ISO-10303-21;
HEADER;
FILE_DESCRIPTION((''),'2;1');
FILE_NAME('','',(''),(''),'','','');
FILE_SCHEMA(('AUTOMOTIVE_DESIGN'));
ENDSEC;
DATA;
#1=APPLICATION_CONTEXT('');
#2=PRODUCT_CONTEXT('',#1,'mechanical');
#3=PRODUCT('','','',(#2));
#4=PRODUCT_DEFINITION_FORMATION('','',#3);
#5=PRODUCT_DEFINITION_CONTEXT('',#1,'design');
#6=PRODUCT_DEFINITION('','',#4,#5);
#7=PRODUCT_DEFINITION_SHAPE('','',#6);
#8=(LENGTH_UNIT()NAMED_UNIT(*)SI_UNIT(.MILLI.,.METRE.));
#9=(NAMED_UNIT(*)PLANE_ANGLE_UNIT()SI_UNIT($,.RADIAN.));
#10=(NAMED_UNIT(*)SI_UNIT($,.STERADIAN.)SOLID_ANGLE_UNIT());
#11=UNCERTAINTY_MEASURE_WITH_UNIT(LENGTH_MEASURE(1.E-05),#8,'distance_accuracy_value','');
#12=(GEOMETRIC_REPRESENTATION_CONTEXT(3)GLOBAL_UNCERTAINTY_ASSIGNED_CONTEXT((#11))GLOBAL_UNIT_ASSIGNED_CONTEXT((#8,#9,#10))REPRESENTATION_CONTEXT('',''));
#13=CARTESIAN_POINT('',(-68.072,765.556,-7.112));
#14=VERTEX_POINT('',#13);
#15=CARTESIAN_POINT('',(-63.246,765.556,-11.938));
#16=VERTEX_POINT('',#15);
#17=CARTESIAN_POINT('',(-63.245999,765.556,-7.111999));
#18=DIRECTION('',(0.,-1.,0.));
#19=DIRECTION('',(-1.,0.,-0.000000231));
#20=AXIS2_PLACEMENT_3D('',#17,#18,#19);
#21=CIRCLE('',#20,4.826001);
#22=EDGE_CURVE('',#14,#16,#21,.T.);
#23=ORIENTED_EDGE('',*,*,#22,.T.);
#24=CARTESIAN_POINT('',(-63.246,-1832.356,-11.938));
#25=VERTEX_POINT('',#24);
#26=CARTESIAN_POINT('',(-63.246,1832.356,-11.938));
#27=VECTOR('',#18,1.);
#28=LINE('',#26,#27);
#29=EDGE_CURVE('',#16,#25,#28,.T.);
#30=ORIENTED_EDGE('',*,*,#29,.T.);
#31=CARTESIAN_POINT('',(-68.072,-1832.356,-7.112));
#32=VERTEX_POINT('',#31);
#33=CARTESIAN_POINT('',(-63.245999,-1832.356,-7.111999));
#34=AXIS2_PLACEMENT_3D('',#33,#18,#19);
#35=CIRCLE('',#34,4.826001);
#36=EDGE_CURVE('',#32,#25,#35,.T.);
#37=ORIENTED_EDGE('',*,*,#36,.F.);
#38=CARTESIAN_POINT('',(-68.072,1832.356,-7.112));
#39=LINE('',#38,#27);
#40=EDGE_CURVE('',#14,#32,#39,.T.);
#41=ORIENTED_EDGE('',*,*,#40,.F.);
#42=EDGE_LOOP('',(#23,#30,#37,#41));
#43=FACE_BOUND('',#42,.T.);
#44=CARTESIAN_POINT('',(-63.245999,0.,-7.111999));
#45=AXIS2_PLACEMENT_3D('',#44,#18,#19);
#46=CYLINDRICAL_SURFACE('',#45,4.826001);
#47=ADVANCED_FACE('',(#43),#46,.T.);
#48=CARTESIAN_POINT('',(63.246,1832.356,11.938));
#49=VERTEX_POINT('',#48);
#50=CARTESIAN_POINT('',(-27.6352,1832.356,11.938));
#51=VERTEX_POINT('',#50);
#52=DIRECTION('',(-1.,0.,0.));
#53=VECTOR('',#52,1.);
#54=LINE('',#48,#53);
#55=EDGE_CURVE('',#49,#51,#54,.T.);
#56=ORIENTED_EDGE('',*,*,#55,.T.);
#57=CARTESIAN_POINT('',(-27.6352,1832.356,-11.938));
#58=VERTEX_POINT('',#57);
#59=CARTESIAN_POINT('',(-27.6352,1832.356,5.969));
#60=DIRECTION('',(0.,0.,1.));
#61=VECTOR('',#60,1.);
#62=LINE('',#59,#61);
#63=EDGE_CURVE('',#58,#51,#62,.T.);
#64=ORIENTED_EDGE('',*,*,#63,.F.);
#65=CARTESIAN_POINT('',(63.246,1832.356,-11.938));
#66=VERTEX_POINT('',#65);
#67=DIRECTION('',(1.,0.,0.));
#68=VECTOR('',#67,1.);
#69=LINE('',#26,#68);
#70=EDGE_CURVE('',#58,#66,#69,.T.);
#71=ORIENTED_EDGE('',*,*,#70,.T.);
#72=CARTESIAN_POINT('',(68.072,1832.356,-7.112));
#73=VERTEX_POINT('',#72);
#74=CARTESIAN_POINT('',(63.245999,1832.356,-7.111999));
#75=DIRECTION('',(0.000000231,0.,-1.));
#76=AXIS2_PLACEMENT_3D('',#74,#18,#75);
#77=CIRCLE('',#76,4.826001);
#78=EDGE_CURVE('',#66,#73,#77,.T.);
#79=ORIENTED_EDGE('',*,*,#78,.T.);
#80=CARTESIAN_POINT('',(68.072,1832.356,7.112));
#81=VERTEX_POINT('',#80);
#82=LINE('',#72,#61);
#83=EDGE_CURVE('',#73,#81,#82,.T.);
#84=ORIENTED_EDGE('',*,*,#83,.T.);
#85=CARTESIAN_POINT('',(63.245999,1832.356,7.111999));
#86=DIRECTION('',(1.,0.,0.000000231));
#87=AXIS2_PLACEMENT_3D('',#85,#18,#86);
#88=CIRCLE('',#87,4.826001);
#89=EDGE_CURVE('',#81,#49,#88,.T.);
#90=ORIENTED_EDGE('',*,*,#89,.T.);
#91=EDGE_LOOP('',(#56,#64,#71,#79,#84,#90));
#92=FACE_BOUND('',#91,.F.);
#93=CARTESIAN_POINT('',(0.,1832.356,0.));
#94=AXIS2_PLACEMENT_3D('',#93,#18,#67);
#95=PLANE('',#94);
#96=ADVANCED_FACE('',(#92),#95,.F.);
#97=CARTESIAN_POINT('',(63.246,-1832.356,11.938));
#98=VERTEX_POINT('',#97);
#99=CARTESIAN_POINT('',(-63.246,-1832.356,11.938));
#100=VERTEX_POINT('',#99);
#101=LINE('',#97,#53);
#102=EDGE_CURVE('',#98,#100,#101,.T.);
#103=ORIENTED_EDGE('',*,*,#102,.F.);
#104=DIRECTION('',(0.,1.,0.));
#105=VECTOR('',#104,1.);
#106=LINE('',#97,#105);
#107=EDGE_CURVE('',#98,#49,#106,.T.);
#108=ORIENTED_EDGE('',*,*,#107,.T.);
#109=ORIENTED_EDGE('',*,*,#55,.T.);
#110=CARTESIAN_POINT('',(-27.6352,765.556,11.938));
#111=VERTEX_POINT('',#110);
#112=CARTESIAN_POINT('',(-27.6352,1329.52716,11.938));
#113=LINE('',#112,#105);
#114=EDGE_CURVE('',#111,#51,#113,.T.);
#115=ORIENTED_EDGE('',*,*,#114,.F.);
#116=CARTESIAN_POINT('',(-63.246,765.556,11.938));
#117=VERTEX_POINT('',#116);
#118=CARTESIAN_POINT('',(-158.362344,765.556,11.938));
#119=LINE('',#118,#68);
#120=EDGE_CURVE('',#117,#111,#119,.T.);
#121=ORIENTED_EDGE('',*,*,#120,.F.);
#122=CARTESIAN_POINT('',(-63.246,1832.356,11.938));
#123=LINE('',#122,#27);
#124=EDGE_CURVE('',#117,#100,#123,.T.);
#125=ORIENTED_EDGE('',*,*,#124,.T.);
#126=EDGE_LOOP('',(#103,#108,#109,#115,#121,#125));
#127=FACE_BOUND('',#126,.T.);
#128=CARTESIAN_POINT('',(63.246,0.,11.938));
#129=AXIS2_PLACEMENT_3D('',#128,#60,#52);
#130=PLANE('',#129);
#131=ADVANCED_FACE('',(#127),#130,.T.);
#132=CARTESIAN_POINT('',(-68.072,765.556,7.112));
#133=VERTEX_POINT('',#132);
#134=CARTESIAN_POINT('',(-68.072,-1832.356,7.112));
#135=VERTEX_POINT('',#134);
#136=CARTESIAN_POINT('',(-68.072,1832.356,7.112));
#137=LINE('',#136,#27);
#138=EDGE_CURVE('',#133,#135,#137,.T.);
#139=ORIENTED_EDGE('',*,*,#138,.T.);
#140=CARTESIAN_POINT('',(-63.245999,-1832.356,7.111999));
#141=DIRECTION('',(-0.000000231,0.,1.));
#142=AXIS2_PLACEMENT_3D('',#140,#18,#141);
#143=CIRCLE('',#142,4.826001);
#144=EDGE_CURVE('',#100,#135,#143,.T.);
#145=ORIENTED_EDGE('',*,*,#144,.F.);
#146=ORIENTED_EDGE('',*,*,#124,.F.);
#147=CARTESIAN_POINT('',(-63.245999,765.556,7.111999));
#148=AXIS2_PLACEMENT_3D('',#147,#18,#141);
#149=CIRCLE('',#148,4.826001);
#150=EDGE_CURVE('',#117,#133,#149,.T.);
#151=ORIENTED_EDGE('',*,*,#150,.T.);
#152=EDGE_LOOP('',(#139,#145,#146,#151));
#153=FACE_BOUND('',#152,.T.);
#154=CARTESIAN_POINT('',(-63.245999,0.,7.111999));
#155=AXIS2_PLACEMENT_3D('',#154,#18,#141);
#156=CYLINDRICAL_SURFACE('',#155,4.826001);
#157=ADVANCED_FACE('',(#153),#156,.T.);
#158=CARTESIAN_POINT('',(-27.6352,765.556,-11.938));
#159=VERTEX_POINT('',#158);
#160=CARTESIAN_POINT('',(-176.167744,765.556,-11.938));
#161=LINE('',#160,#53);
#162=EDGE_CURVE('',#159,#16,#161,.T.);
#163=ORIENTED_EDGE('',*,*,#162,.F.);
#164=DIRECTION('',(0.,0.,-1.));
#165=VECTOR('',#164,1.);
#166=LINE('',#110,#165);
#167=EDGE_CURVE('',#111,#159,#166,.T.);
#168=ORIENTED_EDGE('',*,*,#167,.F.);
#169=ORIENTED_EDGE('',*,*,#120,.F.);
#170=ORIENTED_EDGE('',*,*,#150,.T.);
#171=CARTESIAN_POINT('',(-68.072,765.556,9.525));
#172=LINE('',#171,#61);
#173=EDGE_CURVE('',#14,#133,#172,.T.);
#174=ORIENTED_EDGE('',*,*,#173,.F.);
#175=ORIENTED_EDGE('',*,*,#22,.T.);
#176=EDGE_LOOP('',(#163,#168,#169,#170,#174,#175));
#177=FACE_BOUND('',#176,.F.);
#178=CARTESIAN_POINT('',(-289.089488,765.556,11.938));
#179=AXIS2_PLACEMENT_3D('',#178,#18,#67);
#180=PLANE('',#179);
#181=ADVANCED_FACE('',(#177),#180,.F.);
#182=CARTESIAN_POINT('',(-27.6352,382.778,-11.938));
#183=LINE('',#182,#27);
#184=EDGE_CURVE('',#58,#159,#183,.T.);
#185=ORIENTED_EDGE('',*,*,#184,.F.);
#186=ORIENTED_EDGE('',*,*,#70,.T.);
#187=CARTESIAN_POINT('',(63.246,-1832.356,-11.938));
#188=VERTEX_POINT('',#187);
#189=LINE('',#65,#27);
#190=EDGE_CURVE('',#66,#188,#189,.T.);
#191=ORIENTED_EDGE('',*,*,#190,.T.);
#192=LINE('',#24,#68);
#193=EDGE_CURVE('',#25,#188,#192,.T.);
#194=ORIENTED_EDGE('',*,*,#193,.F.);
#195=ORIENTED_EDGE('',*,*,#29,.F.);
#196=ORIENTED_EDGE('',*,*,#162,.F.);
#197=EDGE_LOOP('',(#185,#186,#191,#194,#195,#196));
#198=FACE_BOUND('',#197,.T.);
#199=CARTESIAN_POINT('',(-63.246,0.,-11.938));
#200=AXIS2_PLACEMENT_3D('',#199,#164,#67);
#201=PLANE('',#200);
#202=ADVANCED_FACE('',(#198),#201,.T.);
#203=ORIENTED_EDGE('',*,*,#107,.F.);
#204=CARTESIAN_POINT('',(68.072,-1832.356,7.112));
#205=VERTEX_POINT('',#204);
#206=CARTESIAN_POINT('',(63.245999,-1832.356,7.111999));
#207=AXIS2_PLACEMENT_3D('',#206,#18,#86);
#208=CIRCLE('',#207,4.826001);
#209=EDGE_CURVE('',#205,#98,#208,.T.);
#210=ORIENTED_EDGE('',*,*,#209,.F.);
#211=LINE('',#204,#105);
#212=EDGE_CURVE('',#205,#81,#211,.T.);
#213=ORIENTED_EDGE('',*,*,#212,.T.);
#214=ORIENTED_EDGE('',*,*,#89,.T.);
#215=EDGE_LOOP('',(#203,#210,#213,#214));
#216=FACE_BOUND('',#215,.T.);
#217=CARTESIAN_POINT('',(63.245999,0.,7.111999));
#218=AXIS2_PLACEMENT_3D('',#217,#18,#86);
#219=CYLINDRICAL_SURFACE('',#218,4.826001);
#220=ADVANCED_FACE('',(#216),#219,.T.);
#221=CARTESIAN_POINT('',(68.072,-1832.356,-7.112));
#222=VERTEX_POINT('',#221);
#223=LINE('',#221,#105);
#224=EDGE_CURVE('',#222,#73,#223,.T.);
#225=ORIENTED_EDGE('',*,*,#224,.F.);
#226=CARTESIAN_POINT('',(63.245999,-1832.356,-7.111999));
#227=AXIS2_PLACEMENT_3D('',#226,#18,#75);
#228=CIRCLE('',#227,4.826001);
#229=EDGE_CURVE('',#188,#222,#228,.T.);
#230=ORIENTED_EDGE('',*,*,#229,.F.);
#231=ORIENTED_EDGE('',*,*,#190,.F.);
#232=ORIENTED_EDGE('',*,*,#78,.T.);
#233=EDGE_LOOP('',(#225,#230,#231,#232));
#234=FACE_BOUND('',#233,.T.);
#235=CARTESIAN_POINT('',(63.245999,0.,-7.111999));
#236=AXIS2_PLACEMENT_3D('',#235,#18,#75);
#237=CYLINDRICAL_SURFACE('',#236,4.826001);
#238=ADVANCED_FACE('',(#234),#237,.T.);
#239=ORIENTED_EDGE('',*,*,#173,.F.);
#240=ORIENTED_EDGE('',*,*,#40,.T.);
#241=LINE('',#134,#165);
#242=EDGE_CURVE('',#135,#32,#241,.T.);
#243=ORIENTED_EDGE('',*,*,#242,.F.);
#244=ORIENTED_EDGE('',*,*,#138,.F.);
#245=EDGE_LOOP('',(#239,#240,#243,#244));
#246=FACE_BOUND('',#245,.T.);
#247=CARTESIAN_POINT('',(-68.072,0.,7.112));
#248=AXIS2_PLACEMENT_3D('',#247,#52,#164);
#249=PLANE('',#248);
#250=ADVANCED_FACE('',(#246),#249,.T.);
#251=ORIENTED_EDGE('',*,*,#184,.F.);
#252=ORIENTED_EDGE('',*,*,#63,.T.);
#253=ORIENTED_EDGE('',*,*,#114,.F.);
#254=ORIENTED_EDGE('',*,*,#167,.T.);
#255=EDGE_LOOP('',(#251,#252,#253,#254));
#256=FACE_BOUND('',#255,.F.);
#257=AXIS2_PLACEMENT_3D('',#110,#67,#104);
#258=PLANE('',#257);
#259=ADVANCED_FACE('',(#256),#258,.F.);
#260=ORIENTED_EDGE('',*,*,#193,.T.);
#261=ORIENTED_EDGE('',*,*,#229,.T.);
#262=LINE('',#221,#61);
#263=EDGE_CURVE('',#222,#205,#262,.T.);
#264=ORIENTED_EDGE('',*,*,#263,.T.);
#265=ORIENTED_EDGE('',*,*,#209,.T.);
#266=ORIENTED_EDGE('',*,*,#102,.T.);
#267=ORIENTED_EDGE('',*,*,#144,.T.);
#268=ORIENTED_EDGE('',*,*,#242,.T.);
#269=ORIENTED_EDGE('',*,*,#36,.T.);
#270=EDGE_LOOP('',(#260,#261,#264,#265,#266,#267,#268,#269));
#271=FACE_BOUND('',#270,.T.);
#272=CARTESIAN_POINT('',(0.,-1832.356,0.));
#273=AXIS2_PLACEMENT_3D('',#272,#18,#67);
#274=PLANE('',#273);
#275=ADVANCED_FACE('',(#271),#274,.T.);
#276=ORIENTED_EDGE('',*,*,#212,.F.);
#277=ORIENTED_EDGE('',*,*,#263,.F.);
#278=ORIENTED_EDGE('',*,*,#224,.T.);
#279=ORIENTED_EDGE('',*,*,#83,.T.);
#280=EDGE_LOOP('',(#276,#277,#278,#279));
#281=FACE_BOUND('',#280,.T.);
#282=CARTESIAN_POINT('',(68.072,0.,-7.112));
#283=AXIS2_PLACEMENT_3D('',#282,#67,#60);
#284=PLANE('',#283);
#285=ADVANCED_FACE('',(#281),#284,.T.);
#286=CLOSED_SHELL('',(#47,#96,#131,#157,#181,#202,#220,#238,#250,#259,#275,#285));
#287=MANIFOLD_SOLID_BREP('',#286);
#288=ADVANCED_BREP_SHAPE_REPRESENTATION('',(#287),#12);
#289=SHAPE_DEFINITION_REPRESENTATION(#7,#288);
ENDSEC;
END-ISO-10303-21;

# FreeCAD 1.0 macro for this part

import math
import FreeCAD as App
import Part
import Sketcher
Q = App.Units.Quantity

doc = App.newDocument("Part")
body = doc.addObject("PartDesign::Body", "Body")

# Sketch on XZ plane
sketch1 = body.newObject("Sketcher::SketchObject", "Sketch")
sketch1.AttachmentSupport = (doc.getObject("XZ_Plane"), [""])
sketch1.MapMode = "FlatFace"
sketch1.addGeometry(Part.LineSegment(App.Vector(63.246, 11.938, 0), App.Vector(-63.246, 11.938, 0)), False)
sketch1.addGeometry(Part.ArcOfCircle(Part.Circle(App.Vector(-63.245999, 7.111999, 0), App.Vector(0, 0, 1), 4.826001), math.radians(90.000013), math.radians(179.999987)), False)
sketch1.addGeometry(Part.LineSegment(App.Vector(-68.072, 7.112, 0), App.Vector(-68.072, -7.112, 0)), False)
sketch1.addGeometry(Part.ArcOfCircle(Part.Circle(App.Vector(-63.245999, -7.111999, 0), App.Vector(0, 0, 1), 4.826001), math.radians(-179.999987), math.radians(-90.000013)), False)
sketch1.addGeometry(Part.LineSegment(App.Vector(-63.246, -11.938, 0), App.Vector(63.246, -11.938, 0)), False)
sketch1.addGeometry(Part.ArcOfCircle(Part.Circle(App.Vector(63.245999, -7.111999, 0), App.Vector(0, 0, 1), 4.826001), math.radians(-89.999987), math.radians(-0.000013)), False)
sketch1.addGeometry(Part.LineSegment(App.Vector(68.072, -7.112, 0), App.Vector(68.072, 7.112, 0)), False)
sketch1.addGeometry(Part.ArcOfCircle(Part.Circle(App.Vector(63.245999, 7.111999, 0), App.Vector(0, 0, 1), 4.826001), math.radians(0.000013), math.radians(89.999987)), False)
sketch1.addConstraint(Sketcher.Constraint("Tangent", 0, 2, 1, 1))
sketch1.addConstraint(Sketcher.Constraint("Tangent", 1, 2, 2, 1))
sketch1.addConstraint(Sketcher.Constraint("Tangent", 2, 2, 3, 1))
sketch1.addConstraint(Sketcher.Constraint("Tangent", 3, 2, 4, 1))
sketch1.addConstraint(Sketcher.Constraint("Tangent", 4, 2, 5, 1))
sketch1.addConstraint(Sketcher.Constraint("Tangent", 5, 2, 6, 1))
sketch1.addConstraint(Sketcher.Constraint("Tangent", 6, 2, 7, 1))
sketch1.addConstraint(Sketcher.Constraint("Tangent", 7, 2, 0, 1))
sketch1.addConstraint(Sketcher.Constraint("Horizontal", 0))
sketch1.addConstraint(Sketcher.Constraint("Vertical", 2))
sketch1.addConstraint(Sketcher.Constraint("Horizontal", 4))
sketch1.addConstraint(Sketcher.Constraint("Vertical", 6))
sketch1.addConstraint(Sketcher.Constraint("Equal", 1, 3))
sketch1.addConstraint(Sketcher.Constraint("Equal", 3, 5))
sketch1.addConstraint(Sketcher.Constraint("Equal", 5, 7))
sketch1.addConstraint(Sketcher.Constraint("Symmetric", 1, 3, 5, 3, -1, 1))
sketch1.addConstraint(Sketcher.Constraint("Radius", 1, Q("0.19 in")))
sketch1.addConstraint(Sketcher.Constraint("DistanceX", 0, 2, 0, 1, Q("4.98 in")))
sketch1.addConstraint(Sketcher.Constraint("DistanceY", 2, 2, 2, 1, Q("0.56 in")))
pad1 = body.newObject("PartDesign::Pad", "Pad")
pad1.Profile = sketch1
pad1.Length = Q("144.28 in")
pad1.Midplane = True

# Sketch on XY plane
sketch2 = body.newObject("Sketcher::SketchObject", "Sketch001")
sketch2.AttachmentSupport = (doc.getObject("XY_Plane"), [""])
sketch2.MapMode = "FlatFace"
sketch2.AttachmentOffset = App.Placement(App.Vector(0, 0, 0.47 * 25.4), App.Rotation())
sketch2.addGeometry(Part.LineSegment(App.Vector(-289.089488, 1893.49832, 0), App.Vector(-289.089488, 765.556, 0)), False)
sketch2.addGeometry(Part.LineSegment(App.Vector(-289.089488, 765.556, 0), App.Vector(-27.6352, 765.556, 0)), False)
sketch2.addGeometry(Part.LineSegment(App.Vector(-27.6352, 765.556, 0), App.Vector(-27.6352, 1893.49832, 0)), False)
sketch2.addGeometry(Part.LineSegment(App.Vector(-27.6352, 1893.49832, 0), App.Vector(-289.089488, 1893.49832, 0)), False)
sketch2.addConstraint(Sketcher.Constraint("Coincident", 0, 2, 1, 1))
sketch2.addConstraint(Sketcher.Constraint("Coincident", 1, 2, 2, 1))
sketch2.addConstraint(Sketcher.Constraint("Coincident", 2, 2, 3, 1))
sketch2.addConstraint(Sketcher.Constraint("Coincident", 3, 2, 0, 1))
sketch2.addConstraint(Sketcher.Constraint("Vertical", 0))
sketch2.addConstraint(Sketcher.Constraint("Horizontal", 1))
sketch2.addConstraint(Sketcher.Constraint("Vertical", 2))
sketch2.addConstraint(Sketcher.Constraint("Horizontal", 3))
sketch2.addConstraint(Sketcher.Constraint("DistanceY", -1, 1, 0, 2, Q("30.14 in")))
sketch2.addConstraint(Sketcher.Constraint("DistanceX", 1, 2, -1, 1, Q("1.088 in")))
sketch2.addConstraint(Sketcher.Constraint("DistanceX", 1, 1, 1, 2, 261.454288))
sketch2.addConstraint(Sketcher.Constraint("DistanceY", 0, 2, 0, 1, 1127.94232))
pocket1 = body.newObject("PartDesign::Pocket", "Pocket")
pocket1.Profile = sketch2
pocket1.Type = "ThroughAll"

doc.recompute()
